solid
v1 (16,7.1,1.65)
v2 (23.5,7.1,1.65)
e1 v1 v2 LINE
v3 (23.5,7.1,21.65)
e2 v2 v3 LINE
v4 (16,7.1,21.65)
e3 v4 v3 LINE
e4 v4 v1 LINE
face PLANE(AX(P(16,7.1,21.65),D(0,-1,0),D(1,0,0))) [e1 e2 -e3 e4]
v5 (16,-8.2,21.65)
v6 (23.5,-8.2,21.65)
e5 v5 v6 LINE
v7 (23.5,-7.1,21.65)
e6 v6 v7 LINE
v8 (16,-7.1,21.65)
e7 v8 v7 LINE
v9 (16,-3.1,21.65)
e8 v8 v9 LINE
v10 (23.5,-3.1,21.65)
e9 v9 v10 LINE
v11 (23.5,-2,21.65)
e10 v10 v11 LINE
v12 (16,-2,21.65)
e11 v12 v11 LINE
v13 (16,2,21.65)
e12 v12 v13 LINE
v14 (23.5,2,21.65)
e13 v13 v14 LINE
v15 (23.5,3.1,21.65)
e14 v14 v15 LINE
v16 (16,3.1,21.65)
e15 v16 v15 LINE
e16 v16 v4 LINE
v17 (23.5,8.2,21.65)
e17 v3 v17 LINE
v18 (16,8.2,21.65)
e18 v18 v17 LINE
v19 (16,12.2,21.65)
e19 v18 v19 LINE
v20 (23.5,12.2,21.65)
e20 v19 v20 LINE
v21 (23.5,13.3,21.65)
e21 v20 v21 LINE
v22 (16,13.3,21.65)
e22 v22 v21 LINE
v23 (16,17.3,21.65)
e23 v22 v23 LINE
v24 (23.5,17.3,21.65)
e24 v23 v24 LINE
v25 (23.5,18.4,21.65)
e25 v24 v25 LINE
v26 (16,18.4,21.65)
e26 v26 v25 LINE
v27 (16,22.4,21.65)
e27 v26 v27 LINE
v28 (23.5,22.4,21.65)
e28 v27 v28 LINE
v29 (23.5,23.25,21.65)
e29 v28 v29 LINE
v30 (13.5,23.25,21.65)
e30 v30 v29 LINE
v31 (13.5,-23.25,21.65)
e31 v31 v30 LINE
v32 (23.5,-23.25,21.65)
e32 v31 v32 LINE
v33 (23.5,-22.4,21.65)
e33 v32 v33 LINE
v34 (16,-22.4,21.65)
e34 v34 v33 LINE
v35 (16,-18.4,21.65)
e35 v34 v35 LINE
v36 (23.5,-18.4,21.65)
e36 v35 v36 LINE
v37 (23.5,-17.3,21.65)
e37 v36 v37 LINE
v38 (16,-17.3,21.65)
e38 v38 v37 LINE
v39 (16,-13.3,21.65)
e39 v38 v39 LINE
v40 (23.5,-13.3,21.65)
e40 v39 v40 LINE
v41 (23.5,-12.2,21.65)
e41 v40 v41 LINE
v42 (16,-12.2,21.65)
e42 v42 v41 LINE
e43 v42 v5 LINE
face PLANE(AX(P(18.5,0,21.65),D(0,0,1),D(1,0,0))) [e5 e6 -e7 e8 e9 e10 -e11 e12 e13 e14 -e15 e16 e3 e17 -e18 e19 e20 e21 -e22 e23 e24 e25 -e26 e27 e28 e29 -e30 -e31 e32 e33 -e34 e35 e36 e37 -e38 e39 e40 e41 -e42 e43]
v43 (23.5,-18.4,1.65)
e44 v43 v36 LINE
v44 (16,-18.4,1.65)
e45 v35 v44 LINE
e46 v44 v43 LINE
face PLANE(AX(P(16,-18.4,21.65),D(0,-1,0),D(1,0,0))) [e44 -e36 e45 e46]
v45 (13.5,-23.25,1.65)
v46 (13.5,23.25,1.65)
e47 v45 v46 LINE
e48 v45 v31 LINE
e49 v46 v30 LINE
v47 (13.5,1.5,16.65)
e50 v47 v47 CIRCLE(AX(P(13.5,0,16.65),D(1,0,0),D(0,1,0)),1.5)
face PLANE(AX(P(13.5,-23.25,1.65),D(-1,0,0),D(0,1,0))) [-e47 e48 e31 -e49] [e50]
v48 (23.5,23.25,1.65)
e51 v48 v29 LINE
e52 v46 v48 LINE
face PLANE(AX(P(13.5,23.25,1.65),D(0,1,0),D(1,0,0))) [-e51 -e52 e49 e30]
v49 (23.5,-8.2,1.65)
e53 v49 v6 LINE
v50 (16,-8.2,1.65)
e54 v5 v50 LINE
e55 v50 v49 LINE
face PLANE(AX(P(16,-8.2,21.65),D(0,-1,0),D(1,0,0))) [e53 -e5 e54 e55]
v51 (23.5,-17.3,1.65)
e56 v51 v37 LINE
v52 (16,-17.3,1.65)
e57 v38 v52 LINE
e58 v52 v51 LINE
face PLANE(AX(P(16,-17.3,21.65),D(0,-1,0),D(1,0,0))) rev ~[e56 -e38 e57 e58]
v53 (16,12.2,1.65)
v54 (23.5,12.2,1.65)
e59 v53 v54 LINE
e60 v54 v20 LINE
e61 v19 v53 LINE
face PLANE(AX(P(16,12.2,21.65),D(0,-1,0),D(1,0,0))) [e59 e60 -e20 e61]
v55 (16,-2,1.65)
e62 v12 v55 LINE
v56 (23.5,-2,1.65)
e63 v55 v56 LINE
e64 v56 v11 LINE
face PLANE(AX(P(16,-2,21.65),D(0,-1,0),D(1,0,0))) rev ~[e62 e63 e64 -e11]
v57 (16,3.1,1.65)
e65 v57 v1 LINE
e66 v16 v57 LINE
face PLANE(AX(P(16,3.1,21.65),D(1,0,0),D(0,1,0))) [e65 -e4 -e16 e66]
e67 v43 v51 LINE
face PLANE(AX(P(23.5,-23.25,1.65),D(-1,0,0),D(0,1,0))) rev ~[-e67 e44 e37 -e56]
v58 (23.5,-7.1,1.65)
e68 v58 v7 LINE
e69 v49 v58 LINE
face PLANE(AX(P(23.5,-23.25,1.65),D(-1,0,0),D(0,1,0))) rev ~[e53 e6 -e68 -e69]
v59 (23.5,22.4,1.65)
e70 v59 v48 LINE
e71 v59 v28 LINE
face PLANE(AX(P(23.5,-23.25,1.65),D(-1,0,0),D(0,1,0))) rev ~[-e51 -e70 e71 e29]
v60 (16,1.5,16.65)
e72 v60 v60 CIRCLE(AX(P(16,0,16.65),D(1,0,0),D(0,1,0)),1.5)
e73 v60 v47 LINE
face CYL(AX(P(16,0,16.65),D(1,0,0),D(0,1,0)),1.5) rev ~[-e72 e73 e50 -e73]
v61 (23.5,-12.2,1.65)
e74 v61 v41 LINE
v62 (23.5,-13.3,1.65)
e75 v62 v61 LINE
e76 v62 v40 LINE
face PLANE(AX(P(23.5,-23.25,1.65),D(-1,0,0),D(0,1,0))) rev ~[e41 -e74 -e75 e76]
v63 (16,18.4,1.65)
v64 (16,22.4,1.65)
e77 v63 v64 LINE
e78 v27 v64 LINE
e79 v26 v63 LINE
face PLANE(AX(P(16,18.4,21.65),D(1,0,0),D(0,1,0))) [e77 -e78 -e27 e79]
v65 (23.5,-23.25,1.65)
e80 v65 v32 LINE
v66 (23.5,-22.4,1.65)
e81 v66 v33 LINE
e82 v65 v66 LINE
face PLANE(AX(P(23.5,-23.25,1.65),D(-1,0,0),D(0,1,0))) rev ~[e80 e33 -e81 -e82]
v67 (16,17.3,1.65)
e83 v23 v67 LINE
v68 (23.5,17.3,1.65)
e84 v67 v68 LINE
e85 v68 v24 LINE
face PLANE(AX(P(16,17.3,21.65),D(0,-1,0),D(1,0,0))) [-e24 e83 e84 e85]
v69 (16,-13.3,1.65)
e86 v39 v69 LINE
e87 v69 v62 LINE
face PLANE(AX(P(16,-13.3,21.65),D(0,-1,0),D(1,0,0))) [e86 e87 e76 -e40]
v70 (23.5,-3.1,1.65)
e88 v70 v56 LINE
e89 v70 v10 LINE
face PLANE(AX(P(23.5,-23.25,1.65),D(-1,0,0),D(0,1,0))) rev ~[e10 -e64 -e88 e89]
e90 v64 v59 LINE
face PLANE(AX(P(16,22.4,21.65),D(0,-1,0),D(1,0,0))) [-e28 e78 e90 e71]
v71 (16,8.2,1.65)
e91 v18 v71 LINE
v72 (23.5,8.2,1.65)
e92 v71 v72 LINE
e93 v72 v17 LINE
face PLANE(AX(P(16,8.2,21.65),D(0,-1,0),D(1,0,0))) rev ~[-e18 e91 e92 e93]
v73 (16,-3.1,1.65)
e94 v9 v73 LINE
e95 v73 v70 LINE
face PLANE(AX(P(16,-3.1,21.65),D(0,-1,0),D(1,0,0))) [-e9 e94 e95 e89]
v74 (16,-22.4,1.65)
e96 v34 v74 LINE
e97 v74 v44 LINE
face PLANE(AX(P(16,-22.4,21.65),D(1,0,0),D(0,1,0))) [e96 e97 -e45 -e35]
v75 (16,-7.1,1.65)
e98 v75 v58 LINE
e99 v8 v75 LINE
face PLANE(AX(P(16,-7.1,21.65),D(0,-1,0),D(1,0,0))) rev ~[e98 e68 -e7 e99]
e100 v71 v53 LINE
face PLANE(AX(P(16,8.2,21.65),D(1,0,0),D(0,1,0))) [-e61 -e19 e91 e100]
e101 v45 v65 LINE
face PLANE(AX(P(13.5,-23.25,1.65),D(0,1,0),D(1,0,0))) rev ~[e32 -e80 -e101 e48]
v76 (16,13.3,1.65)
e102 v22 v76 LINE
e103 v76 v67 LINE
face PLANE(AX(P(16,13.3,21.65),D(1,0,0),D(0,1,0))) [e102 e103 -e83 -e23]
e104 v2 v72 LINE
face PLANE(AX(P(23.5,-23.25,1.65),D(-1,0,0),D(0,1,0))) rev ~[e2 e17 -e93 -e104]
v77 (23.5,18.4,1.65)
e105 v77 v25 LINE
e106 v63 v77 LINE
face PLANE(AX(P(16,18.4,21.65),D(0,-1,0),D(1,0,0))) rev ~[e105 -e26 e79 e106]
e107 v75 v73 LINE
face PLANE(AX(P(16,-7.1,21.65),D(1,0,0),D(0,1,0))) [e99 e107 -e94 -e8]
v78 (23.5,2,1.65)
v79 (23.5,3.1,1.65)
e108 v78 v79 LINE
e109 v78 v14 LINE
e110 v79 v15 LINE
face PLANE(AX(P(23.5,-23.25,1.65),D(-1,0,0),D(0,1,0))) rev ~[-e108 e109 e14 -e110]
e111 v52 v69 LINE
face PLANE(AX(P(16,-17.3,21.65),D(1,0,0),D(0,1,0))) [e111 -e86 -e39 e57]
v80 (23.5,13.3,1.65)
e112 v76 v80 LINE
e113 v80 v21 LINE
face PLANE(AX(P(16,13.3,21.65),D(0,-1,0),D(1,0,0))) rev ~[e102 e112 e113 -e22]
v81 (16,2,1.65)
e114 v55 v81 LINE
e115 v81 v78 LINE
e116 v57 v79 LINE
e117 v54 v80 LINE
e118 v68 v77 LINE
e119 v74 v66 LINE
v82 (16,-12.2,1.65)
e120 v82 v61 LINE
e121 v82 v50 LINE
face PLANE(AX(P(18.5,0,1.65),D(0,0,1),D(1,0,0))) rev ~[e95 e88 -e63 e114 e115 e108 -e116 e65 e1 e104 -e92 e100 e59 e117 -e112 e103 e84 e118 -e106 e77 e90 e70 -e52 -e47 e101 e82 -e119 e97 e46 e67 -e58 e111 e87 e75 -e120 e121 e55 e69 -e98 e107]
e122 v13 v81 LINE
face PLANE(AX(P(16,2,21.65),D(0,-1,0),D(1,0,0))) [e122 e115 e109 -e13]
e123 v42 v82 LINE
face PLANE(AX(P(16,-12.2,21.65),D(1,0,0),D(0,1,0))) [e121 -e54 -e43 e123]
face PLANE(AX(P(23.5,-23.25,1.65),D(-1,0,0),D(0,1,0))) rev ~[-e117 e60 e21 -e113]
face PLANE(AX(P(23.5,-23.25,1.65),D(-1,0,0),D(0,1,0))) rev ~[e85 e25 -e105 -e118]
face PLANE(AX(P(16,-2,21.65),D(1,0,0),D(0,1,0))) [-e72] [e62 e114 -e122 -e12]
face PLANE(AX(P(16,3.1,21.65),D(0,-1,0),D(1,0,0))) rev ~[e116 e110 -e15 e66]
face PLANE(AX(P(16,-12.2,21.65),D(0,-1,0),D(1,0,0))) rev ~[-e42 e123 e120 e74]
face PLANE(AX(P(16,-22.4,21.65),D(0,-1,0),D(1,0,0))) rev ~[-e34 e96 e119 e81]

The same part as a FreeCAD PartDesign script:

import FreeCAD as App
import Part
import Sketcher

V = App.Vector

doc = App.newDocument("Part")
body = doc.addObject("PartDesign::Body", "Body")

sketch1 = doc.addObject("Sketcher::SketchObject", "Sketch")
body.addObject(sketch1)
sketch1.AttachmentSupport = (doc.XY_Plane, [""])
sketch1.MapMode = "FlatFace"
sketch1.addGeometry(Part.LineSegment(V(-5, 23.25, 0), V(-5, -23.25, 0)), False)
sketch1.addGeometry(Part.LineSegment(V(-5, -23.25, 0), V(5, -23.25, 0)), False)
sketch1.addGeometry(Part.LineSegment(V(5, -23.25, 0), V(5, 23.25, 0)), False)
sketch1.addGeometry(Part.LineSegment(V(5, 23.25, 0), V(-5, 23.25, 0)), False)
sketch1.addConstraint(Sketcher.Constraint("Coincident", 0, 2, 1, 1))
sketch1.addConstraint(Sketcher.Constraint("Coincident", 1, 2, 2, 1))
sketch1.addConstraint(Sketcher.Constraint("Coincident", 2, 2, 3, 1))
sketch1.addConstraint(Sketcher.Constraint("Coincident", 3, 2, 0, 1))
sketch1.addConstraint(Sketcher.Constraint("Vertical", 0))
sketch1.addConstraint(Sketcher.Constraint("Horizontal", 1))
sketch1.addConstraint(Sketcher.Constraint("Vertical", 2))
sketch1.addConstraint(Sketcher.Constraint("Horizontal", 3))
sketch1.addConstraint(Sketcher.Constraint("Symmetric", 0, 2, 2, 2, -1, 1))
sketch1.addConstraint(Sketcher.Constraint("DistanceX", 1, 1, 1, 2, 10.0))
sketch1.addConstraint(Sketcher.Constraint("DistanceY", 0, 2, 0, 1, 46.5))
pad1 = doc.addObject("PartDesign::Pad", "Pad")
body.addObject(pad1)
pad1.Profile = sketch1
pad1.Length = 20

sketch2 = doc.addObject("Sketcher::SketchObject", "Sketch001")
body.addObject(sketch2)
sketch2.AttachmentSupport = (doc.XY_Plane, [""])
sketch2.MapMode = "FlatFace"
sketch2.AttachmentOffset = App.Placement(V(0, 0, 20), App.Rotation())
sketch2.addGeometry(Part.LineSegment(V(-2.5, 22.4, 0), V(-2.5, 18.4, 0)), False)
sketch2.addGeometry(Part.LineSegment(V(-2.5, 18.4, 0), V(7.5, 18.4, 0)), False)
sketch2.addGeometry(Part.LineSegment(V(7.5, 18.4, 0), V(7.5, 22.4, 0)), False)
sketch2.addGeometry(Part.LineSegment(V(7.5, 22.4, 0), V(-2.5, 22.4, 0)), False)
sketch2.addGeometry(Part.LineSegment(V(-2.5, 12.2, 0), V(-2.5, 8.2, 0)), False)
sketch2.addGeometry(Part.LineSegment(V(-2.5, 8.2, 0), V(7.5, 8.2, 0)), False)
sketch2.addGeometry(Part.LineSegment(V(7.5, 8.2, 0), V(7.5, 12.2, 0)), False)
sketch2.addGeometry(Part.LineSegment(V(7.5, 12.2, 0), V(-2.5, 12.2, 0)), False)
sketch2.addGeometry(Part.LineSegment(V(-2.5, 17.3, 0), V(-2.5, 13.3, 0)), False)
sketch2.addGeometry(Part.LineSegment(V(-2.5, 13.3, 0), V(7.5, 13.3, 0)), False)
sketch2.addGeometry(Part.LineSegment(V(7.5, 13.3, 0), V(7.5, 17.3, 0)), False)
sketch2.addGeometry(Part.LineSegment(V(7.5, 17.3, 0), V(-2.5, 17.3, 0)), False)
sketch2.addGeometry(Part.LineSegment(V(-2.5, 7.1, 0), V(-2.5, 3.1, 0)), False)
sketch2.addGeometry(Part.LineSegment(V(-2.5, 3.1, 0), V(7.5, 3.1, 0)), False)
sketch2.addGeometry(Part.LineSegment(V(7.5, 3.1, 0), V(7.5, 7.1, 0)), False)
sketch2.addGeometry(Part.LineSegment(V(7.5, 7.1, 0), V(-2.5, 7.1, 0)), False)
sketch2.addGeometry(Part.LineSegment(V(-2.5, 2, 0), V(-2.5, -2, 0)), False)
sketch2.addGeometry(Part.LineSegment(V(-2.5, -2, 0), V(7.5, -2, 0)), False)
sketch2.addGeometry(Part.LineSegment(V(7.5, -2, 0), V(7.5, 2, 0)), False)
sketch2.addGeometry(Part.LineSegment(V(7.5, 2, 0), V(-2.5, 2, 0)), False)
sketch2.addGeometry(Part.LineSegment(V(-2.5, -18.4, 0), V(-2.5, -22.4, 0)), False)
sketch2.addGeometry(Part.LineSegment(V(-2.5, -22.4, 0), V(7.5, -22.4, 0)), False)
sketch2.addGeometry(Part.LineSegment(V(7.5, -22.4, 0), V(7.5, -18.4, 0)), False)
sketch2.addGeometry(Part.LineSegment(V(7.5, -18.4, 0), V(-2.5, -18.4, 0)), False)
sketch2.addGeometry(Part.LineSegment(V(-2.5, -13.3, 0), V(-2.5, -17.3, 0)), False)
sketch2.addGeometry(Part.LineSegment(V(-2.5, -17.3, 0), V(7.5, -17.3, 0)), False)
sketch2.addGeometry(Part.LineSegment(V(7.5, -17.3, 0), V(7.5, -13.3, 0)), False)
sketch2.addGeometry(Part.LineSegment(V(7.5, -13.3, 0), V(-2.5, -13.3, 0)), False)
sketch2.addGeometry(Part.LineSegment(V(-2.5, -8.2, 0), V(-2.5, -12.2, 0)), False)
sketch2.addGeometry(Part.LineSegment(V(-2.5, -12.2, 0), V(7.5, -12.2, 0)), False)
sketch2.addGeometry(Part.LineSegment(V(7.5, -12.2, 0), V(7.5, -8.2, 0)), False)
sketch2.addGeometry(Part.LineSegment(V(7.5, -8.2, 0), V(-2.5, -8.2, 0)), False)
sketch2.addGeometry(Part.LineSegment(V(-2.5, -3.1, 0), V(-2.5, -7.1, 0)), False)
sketch2.addGeometry(Part.LineSegment(V(-2.5, -7.1, 0), V(7.5, -7.1, 0)), False)
sketch2.addGeometry(Part.LineSegment(V(7.5, -7.1, 0), V(7.5, -3.1, 0)), False)
sketch2.addGeometry(Part.LineSegment(V(7.5, -3.1, 0), V(-2.5, -3.1, 0)), False)
sketch2.addConstraint(Sketcher.Constraint("Coincident", 0, 2, 1, 1))
sketch2.addConstraint(Sketcher.Constraint("Coincident", 1, 2, 2, 1))
sketch2.addConstraint(Sketcher.Constraint("Coincident", 2, 2, 3, 1))
sketch2.addConstraint(Sketcher.Constraint("Coincident", 3, 2, 0, 1))
sketch2.addConstraint(Sketcher.Constraint("Coincident", 4, 2, 5, 1))
sketch2.addConstraint(Sketcher.Constraint("Coincident", 5, 2, 6, 1))
sketch2.addConstraint(Sketcher.Constraint("Coincident", 6, 2, 7, 1))
sketch2.addConstraint(Sketcher.Constraint("Coincident", 7, 2, 4, 1))
sketch2.addConstraint(Sketcher.Constraint("Coincident", 8, 2, 9, 1))
sketch2.addConstraint(Sketcher.Constraint("Coincident", 9, 2, 10, 1))
sketch2.addConstraint(Sketcher.Constraint("Coincident", 10, 2, 11, 1))
sketch2.addConstraint(Sketcher.Constraint("Coincident", 11, 2, 8, 1))
sketch2.addConstraint(Sketcher.Constraint("Coincident", 12, 2, 13, 1))
sketch2.addConstraint(Sketcher.Constraint("Coincident", 13, 2, 14, 1))
sketch2.addConstraint(Sketcher.Constraint("Coincident", 14, 2, 15, 1))
sketch2.addConstraint(Sketcher.Constraint("Coincident", 15, 2, 12, 1))
sketch2.addConstraint(Sketcher.Constraint("Coincident", 16, 2, 17, 1))
sketch2.addConstraint(Sketcher.Constraint("Coincident", 17, 2, 18, 1))
sketch2.addConstraint(Sketcher.Constraint("Coincident", 18, 2, 19, 1))
sketch2.addConstraint(Sketcher.Constraint("Coincident", 19, 2, 16, 1))
sketch2.addConstraint(Sketcher.Constraint("Coincident", 20, 2, 21, 1))
sketch2.addConstraint(Sketcher.Constraint("Coincident", 21, 2, 22, 1))
sketch2.addConstraint(Sketcher.Constraint("Coincident", 22, 2, 23, 1))
sketch2.addConstraint(Sketcher.Constraint("Coincident", 23, 2, 20, 1))
sketch2.addConstraint(Sketcher.Constraint("Coincident", 24, 2, 25, 1))
sketch2.addConstraint(Sketcher.Constraint("Coincident", 25, 2, 26, 1))
sketch2.addConstraint(Sketcher.Constraint("Coincident", 26, 2, 27, 1))
sketch2.addConstraint(Sketcher.Constraint("Coincident", 27, 2, 24, 1))
sketch2.addConstraint(Sketcher.Constraint("Coincident", 28, 2, 29, 1))
sketch2.addConstraint(Sketcher.Constraint("Coincident", 29, 2, 30, 1))
sketch2.addConstraint(Sketcher.Constraint("Coincident", 30, 2, 31, 1))
sketch2.addConstraint(Sketcher.Constraint("Coincident", 31, 2, 28, 1))
sketch2.addConstraint(Sketcher.Constraint("Coincident", 32, 2, 33, 1))
sketch2.addConstraint(Sketcher.Constraint("Coincident", 33, 2, 34, 1))
sketch2.addConstraint(Sketcher.Constraint("Coincident", 34, 2, 35, 1))
sketch2.addConstraint(Sketcher.Constraint("Coincident", 35, 2, 32, 1))
sketch2.addConstraint(Sketcher.Constraint("Vertical", 0))
sketch2.addConstraint(Sketcher.Constraint("Horizontal", 1))
sketch2.addConstraint(Sketcher.Constraint("Vertical", 2))
sketch2.addConstraint(Sketcher.Constraint("Horizontal", 3))
sketch2.addConstraint(Sketcher.Constraint("Vertical", 4))
sketch2.addConstraint(Sketcher.Constraint("Horizontal", 5))
sketch2.addConstraint(Sketcher.Constraint("Vertical", 6))
sketch2.addConstraint(Sketcher.Constraint("Horizontal", 7))
sketch2.addConstraint(Sketcher.Constraint("Vertical", 8))
sketch2.addConstraint(Sketcher.Constraint("Horizontal", 9))
sketch2.addConstraint(Sketcher.Constraint("Vertical", 10))
sketch2.addConstraint(Sketcher.Constraint("Horizontal", 11))
sketch2.addConstraint(Sketcher.Constraint("Vertical", 12))
sketch2.addConstraint(Sketcher.Constraint("Horizontal", 13))
sketch2.addConstraint(Sketcher.Constraint("Vertical", 14))
sketch2.addConstraint(Sketcher.Constraint("Horizontal", 15))
sketch2.addConstraint(Sketcher.Constraint("Vertical", 16))
sketch2.addConstraint(Sketcher.Constraint("Horizontal", 17))
sketch2.addConstraint(Sketcher.Constraint("Vertical", 18))
sketch2.addConstraint(Sketcher.Constraint("Horizontal", 19))
sketch2.addConstraint(Sketcher.Constraint("Vertical", 20))
sketch2.addConstraint(Sketcher.Constraint("Horizontal", 21))
sketch2.addConstraint(Sketcher.Constraint("Vertical", 22))
sketch2.addConstraint(Sketcher.Constraint("Horizontal", 23))
sketch2.addConstraint(Sketcher.Constraint("Vertical", 24))
sketch2.addConstraint(Sketcher.Constraint("Horizontal", 25))
sketch2.addConstraint(Sketcher.Constraint("Vertical", 26))
sketch2.addConstraint(Sketcher.Constraint("Horizontal", 27))
sketch2.addConstraint(Sketcher.Constraint("Vertical", 28))
sketch2.addConstraint(Sketcher.Constraint("Horizontal", 29))
sketch2.addConstraint(Sketcher.Constraint("Vertical", 30))
sketch2.addConstraint(Sketcher.Constraint("Horizontal", 31))
sketch2.addConstraint(Sketcher.Constraint("Vertical", 32))
sketch2.addConstraint(Sketcher.Constraint("Horizontal", 33))
sketch2.addConstraint(Sketcher.Constraint("Vertical", 34))
sketch2.addConstraint(Sketcher.Constraint("Horizontal", 35))
sketch2.addConstraint(Sketcher.Constraint("Symmetric", 3, 2, 20, 2, -1))
sketch2.addConstraint(Sketcher.Constraint("Symmetric", 1, 2, 22, 2, -1))
sketch2.addConstraint(Sketcher.Constraint("Symmetric", 11, 2, 24, 2, -1))
sketch2.addConstraint(Sketcher.Constraint("Symmetric", 9, 2, 26, 2, -1))
sketch2.addConstraint(Sketcher.Constraint("Symmetric", 7, 2, 28, 2, -1))
sketch2.addConstraint(Sketcher.Constraint("Symmetric", 5, 2, 30, 2, -1))
sketch2.addConstraint(Sketcher.Constraint("Symmetric", 15, 2, 32, 2, -1))
sketch2.addConstraint(Sketcher.Constraint("Symmetric", 13, 2, 34, 2, -1))
sketch2.addConstraint(Sketcher.Constraint("Vertical", 3, 2, 4, 2))
sketch2.addConstraint(Sketcher.Constraint("Vertical", 2, 2, 5, 2))
sketch2.addConstraint(Sketcher.Constraint("Vertical", 7, 2, 8, 2))
sketch2.addConstraint(Sketcher.Constraint("Vertical", 6, 2, 9, 2))
sketch2.addConstraint(Sketcher.Constraint("Vertical", 11, 2, 12, 2))
sketch2.addConstraint(Sketcher.Constraint("Vertical", 10, 2, 13, 2))
sketch2.addConstraint(Sketcher.Constraint("Vertical", 15, 2, 16, 2))
sketch2.addConstraint(Sketcher.Constraint("Vertical", 14, 2, 17, 2))
sketch2.addConstraint(Sketcher.Constraint("Equal", 2, 4))
sketch2.addConstraint(Sketcher.Constraint("Equal", 6, 8))
sketch2.addConstraint(Sketcher.Constraint("Equal", 10, 12))
sketch2.addConstraint(Sketcher.Constraint("Equal", 14, 16))
sketch2.addConstraint(Sketcher.Constraint("DistanceX", 1, 1, 1, 2, 10.0))
sketch2.addConstraint(Sketcher.Constraint("DistanceY", 0, 2, 0, 1, 4.0))
sketch2.addConstraint(Sketcher.Constraint("DistanceY", 16, 2, -1, 1, 2.0))
sketch2.addConstraint(Sketcher.Constraint("DistanceX", 0, 2, -1, 1, 2.5))
sketch2.addConstraint(Sketcher.Constraint("DistanceY", -1, 1, 0, 2, 18.4))
sketch2.addConstraint(Sketcher.Constraint("DistanceY", -1, 1, 4, 2, 8.2))
sketch2.addConstraint(Sketcher.Constraint("DistanceY", -1, 1, 8, 2, 13.3))
sketch2.addConstraint(Sketcher.Constraint("DistanceY", -1, 1, 12, 2, 3.1))
pocket1 = doc.addObject("PartDesign::Pocket", "Pocket")
body.addObject(pocket1)
pocket1.Profile = sketch2
pocket1.Length = 20

sketch3 = doc.addObject("Sketcher::SketchObject", "Sketch002")
body.addObject(sketch3)
sketch3.AttachmentSupport = (doc.YZ_Plane, [""])
sketch3.MapMode = "FlatFace"
sketch3.AttachmentOffset = App.Placement(V(0, 0, -2.5), App.Rotation())
sketch3.addGeometry(Part.Circle(V(0, 15, 0), V(0, 0, 1), 1.5), False)
sketch3.addConstraint(Sketcher.Constraint("PointOnObject", 0, 3, -2))
sketch3.addConstraint(Sketcher.Constraint("Diameter", 0, 3.0))
sketch3.addConstraint(Sketcher.Constraint("DistanceY", -1, 1, 0, 3, 15.0))
pocket2 = doc.addObject("PartDesign::Pocket", "Pocket001")
body.addObject(pocket2)
pocket2.Profile = sketch3
pocket2.Length = 5
body2 = doc.addObject("PartDesign::Body", "Body001")
doc.recompute()

body.Placement = App.Placement(V(18.5, 0, 1.65), App.Rotation(V(0, 0, 1), 0))
boolean = doc.addObject("PartDesign::Boolean", "Boolean")
body2.addObject(boolean)
boolean.Type = "Fuse"
boolean.addObjects([body])

doc.recompute()
